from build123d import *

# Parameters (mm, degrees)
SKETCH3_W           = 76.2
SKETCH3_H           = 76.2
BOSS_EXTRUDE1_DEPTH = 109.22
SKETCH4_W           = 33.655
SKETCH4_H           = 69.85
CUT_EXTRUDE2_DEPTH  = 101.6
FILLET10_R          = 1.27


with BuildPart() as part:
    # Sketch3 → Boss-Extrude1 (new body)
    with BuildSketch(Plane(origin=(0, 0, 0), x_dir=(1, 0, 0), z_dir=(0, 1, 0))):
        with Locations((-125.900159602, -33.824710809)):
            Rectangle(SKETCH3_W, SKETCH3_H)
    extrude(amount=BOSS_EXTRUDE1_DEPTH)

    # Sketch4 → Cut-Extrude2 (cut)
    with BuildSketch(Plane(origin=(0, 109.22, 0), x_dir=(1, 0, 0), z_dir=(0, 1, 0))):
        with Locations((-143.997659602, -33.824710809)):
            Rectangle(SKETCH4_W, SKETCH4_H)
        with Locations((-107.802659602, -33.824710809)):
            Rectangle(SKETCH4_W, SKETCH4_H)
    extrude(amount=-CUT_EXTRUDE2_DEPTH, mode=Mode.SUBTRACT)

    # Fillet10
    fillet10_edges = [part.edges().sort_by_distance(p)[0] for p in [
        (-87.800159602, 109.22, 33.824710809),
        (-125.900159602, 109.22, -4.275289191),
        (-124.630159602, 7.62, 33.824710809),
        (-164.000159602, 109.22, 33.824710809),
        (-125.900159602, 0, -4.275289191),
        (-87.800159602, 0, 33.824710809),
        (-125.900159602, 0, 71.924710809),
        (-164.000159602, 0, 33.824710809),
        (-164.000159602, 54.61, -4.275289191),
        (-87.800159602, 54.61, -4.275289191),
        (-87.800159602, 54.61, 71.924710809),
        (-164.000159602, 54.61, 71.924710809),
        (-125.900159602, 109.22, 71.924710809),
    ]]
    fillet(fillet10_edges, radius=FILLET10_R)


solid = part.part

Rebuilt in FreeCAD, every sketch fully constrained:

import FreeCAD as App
import Part
import Sketcher
from FreeCAD import Vector
Q = App.Units.Quantity


def edges_at(feature, points):
    """Names of the edges that pass closest to the given points."""
    edges = feature.Shape.Edges
    near = lambda p: min(range(len(edges)), key=lambda i: edges[i].distToShape(Part.Vertex(*p))[0])
    return sorted({f"Edge{near(p) + 1}" for p in points})


def add_polygon(sketch, points):
    """Adds a closed chain of lines whose ends are joined by coincident constraints."""
    first, n = sketch.GeometryCount, len(points)
    for a, b in zip(points, points[1:] + points[:1]):
        sketch.addGeometry(Part.LineSegment(App.Vector(*a, 0), App.Vector(*b, 0)), False)
    for i in range(n):
        sketch.addConstraint(Sketcher.Constraint("Coincident", first + i, 2, first + (i + 1) % n, 1))

doc = App.newDocument("Part")
body = doc.addObject("PartDesign::Body", "Body")

# Sketch on XZ plane
sketch1 = body.newObject("Sketcher::SketchObject", "Sketch")
sketch1.AttachmentSupport = (doc.getObject("XZ_Plane"), [""])
sketch1.MapMode = "FlatFace"
add_polygon(sketch1, [(-164.00016, -4.275289), (-164.00016, 71.924711), (-87.80016, 71.924711), (-87.80016, -4.275289)])  # lines 0-3
sketch1.addConstraint(Sketcher.Constraint("Vertical", 0))
sketch1.addConstraint(Sketcher.Constraint("Horizontal", 1))
sketch1.addConstraint(Sketcher.Constraint("Vertical", 2))
sketch1.addConstraint(Sketcher.Constraint("Horizontal", 3))
sketch1.addConstraint(Sketcher.Constraint("Equal", 3, 0))
sketch1.addConstraint(Sketcher.Constraint("DistanceX", 1, 1, 1, 2, Q("3 in")))
sketch1.addConstraint(Sketcher.Constraint("DistanceX", 0, 2, -1, 1, 164.00016))
sketch1.addConstraint(Sketcher.Constraint("DistanceY", -1, 1, 0, 2, 71.924711))
pad1 = body.newObject("PartDesign::Pad", "Pad")
pad1.Profile = sketch1
pad1.Length = Q("4.3 in")
pad1.Reversed = True

# Sketch on XZ plane
sketch2 = body.newObject("Sketcher::SketchObject", "Sketch001")
sketch2.AttachmentSupport = (doc.getObject("XZ_Plane"), [""])
sketch2.MapMode = "FlatFace"
sketch2.AttachmentOffset = App.Placement(Vector(0, 0, -4.3 * 25.4), App.Rotation())
add_polygon(sketch2, [(-160.82516, -1.100289), (-160.82516, 68.749711), (-127.17016, 68.749711), (-127.17016, -1.100289)])  # lines 0-3
add_polygon(sketch2, [(-124.63016, -1.100289), (-124.63016, 68.749711), (-90.97516, 68.749711), (-90.97516, -1.100289)])  # lines 4-7
sketch2.addConstraint(Sketcher.Constraint("Vertical", 0))
sketch2.addConstraint(Sketcher.Constraint("Horizontal", 1))
sketch2.addConstraint(Sketcher.Constraint("Vertical", 2))
sketch2.addConstraint(Sketcher.Constraint("Horizontal", 3))
sketch2.addConstraint(Sketcher.Constraint("Vertical", 4))
sketch2.addConstraint(Sketcher.Constraint("Horizontal", 5))
sketch2.addConstraint(Sketcher.Constraint("Vertical", 6))
sketch2.addConstraint(Sketcher.Constraint("Horizontal", 7))
sketch2.addConstraint(Sketcher.Constraint("Horizontal", 1, 2, 4, 2))
sketch2.addConstraint(Sketcher.Constraint("Horizontal", 3, 2, 6, 2))
sketch2.addConstraint(Sketcher.Constraint("Equal", 3, 5))
sketch2.addConstraint(Sketcher.Constraint("DistanceY", 0, 1, 0, 2, Q("2.75 in")))
sketch2.addConstraint(Sketcher.Constraint("DistanceX", 1, 2, 4, 2, Q("0.1 in")))
sketch2.addConstraint(Sketcher.Constraint("DistanceX", 1, 1, 1, 2, Q("1.325 in")))
sketch2.addConstraint(Sketcher.Constraint("DistanceX", 0, 2, -1, 1, 160.82516))
sketch2.addConstraint(Sketcher.Constraint("DistanceY", -1, 1, 0, 2, 68.749711))
pocket1 = body.newObject("PartDesign::Pocket", "Pocket")
pocket1.Profile = sketch2
pocket1.Length = Q("4 in")
pocket1.Reversed = True
doc.recompute()

fillet = body.newObject("PartDesign::Fillet", "Fillet")
fillet.Base = (pocket1, edges_at(pocket1, [
    (-87.8, 109.22, 33.825),
    (-125.9, 109.22, -4.275),
    (-124.63, 7.62, 33.825),
    (-164, 109.22, 33.825),
    (-125.9, 0, -4.275),
    (-87.8, 0, 33.825),
    (-125.9, 0, 71.925),
    (-164, 0, 33.825),
    (-164, 54.61, -4.275),
    (-87.8, 54.61, -4.275),
    (-87.8, 54.61, 71.925),
    (-164, 54.61, 71.925),
    (-125.9, 109.22, 71.925),
]))
fillet.Radius = Q("0.05 in")

doc.recompute()
